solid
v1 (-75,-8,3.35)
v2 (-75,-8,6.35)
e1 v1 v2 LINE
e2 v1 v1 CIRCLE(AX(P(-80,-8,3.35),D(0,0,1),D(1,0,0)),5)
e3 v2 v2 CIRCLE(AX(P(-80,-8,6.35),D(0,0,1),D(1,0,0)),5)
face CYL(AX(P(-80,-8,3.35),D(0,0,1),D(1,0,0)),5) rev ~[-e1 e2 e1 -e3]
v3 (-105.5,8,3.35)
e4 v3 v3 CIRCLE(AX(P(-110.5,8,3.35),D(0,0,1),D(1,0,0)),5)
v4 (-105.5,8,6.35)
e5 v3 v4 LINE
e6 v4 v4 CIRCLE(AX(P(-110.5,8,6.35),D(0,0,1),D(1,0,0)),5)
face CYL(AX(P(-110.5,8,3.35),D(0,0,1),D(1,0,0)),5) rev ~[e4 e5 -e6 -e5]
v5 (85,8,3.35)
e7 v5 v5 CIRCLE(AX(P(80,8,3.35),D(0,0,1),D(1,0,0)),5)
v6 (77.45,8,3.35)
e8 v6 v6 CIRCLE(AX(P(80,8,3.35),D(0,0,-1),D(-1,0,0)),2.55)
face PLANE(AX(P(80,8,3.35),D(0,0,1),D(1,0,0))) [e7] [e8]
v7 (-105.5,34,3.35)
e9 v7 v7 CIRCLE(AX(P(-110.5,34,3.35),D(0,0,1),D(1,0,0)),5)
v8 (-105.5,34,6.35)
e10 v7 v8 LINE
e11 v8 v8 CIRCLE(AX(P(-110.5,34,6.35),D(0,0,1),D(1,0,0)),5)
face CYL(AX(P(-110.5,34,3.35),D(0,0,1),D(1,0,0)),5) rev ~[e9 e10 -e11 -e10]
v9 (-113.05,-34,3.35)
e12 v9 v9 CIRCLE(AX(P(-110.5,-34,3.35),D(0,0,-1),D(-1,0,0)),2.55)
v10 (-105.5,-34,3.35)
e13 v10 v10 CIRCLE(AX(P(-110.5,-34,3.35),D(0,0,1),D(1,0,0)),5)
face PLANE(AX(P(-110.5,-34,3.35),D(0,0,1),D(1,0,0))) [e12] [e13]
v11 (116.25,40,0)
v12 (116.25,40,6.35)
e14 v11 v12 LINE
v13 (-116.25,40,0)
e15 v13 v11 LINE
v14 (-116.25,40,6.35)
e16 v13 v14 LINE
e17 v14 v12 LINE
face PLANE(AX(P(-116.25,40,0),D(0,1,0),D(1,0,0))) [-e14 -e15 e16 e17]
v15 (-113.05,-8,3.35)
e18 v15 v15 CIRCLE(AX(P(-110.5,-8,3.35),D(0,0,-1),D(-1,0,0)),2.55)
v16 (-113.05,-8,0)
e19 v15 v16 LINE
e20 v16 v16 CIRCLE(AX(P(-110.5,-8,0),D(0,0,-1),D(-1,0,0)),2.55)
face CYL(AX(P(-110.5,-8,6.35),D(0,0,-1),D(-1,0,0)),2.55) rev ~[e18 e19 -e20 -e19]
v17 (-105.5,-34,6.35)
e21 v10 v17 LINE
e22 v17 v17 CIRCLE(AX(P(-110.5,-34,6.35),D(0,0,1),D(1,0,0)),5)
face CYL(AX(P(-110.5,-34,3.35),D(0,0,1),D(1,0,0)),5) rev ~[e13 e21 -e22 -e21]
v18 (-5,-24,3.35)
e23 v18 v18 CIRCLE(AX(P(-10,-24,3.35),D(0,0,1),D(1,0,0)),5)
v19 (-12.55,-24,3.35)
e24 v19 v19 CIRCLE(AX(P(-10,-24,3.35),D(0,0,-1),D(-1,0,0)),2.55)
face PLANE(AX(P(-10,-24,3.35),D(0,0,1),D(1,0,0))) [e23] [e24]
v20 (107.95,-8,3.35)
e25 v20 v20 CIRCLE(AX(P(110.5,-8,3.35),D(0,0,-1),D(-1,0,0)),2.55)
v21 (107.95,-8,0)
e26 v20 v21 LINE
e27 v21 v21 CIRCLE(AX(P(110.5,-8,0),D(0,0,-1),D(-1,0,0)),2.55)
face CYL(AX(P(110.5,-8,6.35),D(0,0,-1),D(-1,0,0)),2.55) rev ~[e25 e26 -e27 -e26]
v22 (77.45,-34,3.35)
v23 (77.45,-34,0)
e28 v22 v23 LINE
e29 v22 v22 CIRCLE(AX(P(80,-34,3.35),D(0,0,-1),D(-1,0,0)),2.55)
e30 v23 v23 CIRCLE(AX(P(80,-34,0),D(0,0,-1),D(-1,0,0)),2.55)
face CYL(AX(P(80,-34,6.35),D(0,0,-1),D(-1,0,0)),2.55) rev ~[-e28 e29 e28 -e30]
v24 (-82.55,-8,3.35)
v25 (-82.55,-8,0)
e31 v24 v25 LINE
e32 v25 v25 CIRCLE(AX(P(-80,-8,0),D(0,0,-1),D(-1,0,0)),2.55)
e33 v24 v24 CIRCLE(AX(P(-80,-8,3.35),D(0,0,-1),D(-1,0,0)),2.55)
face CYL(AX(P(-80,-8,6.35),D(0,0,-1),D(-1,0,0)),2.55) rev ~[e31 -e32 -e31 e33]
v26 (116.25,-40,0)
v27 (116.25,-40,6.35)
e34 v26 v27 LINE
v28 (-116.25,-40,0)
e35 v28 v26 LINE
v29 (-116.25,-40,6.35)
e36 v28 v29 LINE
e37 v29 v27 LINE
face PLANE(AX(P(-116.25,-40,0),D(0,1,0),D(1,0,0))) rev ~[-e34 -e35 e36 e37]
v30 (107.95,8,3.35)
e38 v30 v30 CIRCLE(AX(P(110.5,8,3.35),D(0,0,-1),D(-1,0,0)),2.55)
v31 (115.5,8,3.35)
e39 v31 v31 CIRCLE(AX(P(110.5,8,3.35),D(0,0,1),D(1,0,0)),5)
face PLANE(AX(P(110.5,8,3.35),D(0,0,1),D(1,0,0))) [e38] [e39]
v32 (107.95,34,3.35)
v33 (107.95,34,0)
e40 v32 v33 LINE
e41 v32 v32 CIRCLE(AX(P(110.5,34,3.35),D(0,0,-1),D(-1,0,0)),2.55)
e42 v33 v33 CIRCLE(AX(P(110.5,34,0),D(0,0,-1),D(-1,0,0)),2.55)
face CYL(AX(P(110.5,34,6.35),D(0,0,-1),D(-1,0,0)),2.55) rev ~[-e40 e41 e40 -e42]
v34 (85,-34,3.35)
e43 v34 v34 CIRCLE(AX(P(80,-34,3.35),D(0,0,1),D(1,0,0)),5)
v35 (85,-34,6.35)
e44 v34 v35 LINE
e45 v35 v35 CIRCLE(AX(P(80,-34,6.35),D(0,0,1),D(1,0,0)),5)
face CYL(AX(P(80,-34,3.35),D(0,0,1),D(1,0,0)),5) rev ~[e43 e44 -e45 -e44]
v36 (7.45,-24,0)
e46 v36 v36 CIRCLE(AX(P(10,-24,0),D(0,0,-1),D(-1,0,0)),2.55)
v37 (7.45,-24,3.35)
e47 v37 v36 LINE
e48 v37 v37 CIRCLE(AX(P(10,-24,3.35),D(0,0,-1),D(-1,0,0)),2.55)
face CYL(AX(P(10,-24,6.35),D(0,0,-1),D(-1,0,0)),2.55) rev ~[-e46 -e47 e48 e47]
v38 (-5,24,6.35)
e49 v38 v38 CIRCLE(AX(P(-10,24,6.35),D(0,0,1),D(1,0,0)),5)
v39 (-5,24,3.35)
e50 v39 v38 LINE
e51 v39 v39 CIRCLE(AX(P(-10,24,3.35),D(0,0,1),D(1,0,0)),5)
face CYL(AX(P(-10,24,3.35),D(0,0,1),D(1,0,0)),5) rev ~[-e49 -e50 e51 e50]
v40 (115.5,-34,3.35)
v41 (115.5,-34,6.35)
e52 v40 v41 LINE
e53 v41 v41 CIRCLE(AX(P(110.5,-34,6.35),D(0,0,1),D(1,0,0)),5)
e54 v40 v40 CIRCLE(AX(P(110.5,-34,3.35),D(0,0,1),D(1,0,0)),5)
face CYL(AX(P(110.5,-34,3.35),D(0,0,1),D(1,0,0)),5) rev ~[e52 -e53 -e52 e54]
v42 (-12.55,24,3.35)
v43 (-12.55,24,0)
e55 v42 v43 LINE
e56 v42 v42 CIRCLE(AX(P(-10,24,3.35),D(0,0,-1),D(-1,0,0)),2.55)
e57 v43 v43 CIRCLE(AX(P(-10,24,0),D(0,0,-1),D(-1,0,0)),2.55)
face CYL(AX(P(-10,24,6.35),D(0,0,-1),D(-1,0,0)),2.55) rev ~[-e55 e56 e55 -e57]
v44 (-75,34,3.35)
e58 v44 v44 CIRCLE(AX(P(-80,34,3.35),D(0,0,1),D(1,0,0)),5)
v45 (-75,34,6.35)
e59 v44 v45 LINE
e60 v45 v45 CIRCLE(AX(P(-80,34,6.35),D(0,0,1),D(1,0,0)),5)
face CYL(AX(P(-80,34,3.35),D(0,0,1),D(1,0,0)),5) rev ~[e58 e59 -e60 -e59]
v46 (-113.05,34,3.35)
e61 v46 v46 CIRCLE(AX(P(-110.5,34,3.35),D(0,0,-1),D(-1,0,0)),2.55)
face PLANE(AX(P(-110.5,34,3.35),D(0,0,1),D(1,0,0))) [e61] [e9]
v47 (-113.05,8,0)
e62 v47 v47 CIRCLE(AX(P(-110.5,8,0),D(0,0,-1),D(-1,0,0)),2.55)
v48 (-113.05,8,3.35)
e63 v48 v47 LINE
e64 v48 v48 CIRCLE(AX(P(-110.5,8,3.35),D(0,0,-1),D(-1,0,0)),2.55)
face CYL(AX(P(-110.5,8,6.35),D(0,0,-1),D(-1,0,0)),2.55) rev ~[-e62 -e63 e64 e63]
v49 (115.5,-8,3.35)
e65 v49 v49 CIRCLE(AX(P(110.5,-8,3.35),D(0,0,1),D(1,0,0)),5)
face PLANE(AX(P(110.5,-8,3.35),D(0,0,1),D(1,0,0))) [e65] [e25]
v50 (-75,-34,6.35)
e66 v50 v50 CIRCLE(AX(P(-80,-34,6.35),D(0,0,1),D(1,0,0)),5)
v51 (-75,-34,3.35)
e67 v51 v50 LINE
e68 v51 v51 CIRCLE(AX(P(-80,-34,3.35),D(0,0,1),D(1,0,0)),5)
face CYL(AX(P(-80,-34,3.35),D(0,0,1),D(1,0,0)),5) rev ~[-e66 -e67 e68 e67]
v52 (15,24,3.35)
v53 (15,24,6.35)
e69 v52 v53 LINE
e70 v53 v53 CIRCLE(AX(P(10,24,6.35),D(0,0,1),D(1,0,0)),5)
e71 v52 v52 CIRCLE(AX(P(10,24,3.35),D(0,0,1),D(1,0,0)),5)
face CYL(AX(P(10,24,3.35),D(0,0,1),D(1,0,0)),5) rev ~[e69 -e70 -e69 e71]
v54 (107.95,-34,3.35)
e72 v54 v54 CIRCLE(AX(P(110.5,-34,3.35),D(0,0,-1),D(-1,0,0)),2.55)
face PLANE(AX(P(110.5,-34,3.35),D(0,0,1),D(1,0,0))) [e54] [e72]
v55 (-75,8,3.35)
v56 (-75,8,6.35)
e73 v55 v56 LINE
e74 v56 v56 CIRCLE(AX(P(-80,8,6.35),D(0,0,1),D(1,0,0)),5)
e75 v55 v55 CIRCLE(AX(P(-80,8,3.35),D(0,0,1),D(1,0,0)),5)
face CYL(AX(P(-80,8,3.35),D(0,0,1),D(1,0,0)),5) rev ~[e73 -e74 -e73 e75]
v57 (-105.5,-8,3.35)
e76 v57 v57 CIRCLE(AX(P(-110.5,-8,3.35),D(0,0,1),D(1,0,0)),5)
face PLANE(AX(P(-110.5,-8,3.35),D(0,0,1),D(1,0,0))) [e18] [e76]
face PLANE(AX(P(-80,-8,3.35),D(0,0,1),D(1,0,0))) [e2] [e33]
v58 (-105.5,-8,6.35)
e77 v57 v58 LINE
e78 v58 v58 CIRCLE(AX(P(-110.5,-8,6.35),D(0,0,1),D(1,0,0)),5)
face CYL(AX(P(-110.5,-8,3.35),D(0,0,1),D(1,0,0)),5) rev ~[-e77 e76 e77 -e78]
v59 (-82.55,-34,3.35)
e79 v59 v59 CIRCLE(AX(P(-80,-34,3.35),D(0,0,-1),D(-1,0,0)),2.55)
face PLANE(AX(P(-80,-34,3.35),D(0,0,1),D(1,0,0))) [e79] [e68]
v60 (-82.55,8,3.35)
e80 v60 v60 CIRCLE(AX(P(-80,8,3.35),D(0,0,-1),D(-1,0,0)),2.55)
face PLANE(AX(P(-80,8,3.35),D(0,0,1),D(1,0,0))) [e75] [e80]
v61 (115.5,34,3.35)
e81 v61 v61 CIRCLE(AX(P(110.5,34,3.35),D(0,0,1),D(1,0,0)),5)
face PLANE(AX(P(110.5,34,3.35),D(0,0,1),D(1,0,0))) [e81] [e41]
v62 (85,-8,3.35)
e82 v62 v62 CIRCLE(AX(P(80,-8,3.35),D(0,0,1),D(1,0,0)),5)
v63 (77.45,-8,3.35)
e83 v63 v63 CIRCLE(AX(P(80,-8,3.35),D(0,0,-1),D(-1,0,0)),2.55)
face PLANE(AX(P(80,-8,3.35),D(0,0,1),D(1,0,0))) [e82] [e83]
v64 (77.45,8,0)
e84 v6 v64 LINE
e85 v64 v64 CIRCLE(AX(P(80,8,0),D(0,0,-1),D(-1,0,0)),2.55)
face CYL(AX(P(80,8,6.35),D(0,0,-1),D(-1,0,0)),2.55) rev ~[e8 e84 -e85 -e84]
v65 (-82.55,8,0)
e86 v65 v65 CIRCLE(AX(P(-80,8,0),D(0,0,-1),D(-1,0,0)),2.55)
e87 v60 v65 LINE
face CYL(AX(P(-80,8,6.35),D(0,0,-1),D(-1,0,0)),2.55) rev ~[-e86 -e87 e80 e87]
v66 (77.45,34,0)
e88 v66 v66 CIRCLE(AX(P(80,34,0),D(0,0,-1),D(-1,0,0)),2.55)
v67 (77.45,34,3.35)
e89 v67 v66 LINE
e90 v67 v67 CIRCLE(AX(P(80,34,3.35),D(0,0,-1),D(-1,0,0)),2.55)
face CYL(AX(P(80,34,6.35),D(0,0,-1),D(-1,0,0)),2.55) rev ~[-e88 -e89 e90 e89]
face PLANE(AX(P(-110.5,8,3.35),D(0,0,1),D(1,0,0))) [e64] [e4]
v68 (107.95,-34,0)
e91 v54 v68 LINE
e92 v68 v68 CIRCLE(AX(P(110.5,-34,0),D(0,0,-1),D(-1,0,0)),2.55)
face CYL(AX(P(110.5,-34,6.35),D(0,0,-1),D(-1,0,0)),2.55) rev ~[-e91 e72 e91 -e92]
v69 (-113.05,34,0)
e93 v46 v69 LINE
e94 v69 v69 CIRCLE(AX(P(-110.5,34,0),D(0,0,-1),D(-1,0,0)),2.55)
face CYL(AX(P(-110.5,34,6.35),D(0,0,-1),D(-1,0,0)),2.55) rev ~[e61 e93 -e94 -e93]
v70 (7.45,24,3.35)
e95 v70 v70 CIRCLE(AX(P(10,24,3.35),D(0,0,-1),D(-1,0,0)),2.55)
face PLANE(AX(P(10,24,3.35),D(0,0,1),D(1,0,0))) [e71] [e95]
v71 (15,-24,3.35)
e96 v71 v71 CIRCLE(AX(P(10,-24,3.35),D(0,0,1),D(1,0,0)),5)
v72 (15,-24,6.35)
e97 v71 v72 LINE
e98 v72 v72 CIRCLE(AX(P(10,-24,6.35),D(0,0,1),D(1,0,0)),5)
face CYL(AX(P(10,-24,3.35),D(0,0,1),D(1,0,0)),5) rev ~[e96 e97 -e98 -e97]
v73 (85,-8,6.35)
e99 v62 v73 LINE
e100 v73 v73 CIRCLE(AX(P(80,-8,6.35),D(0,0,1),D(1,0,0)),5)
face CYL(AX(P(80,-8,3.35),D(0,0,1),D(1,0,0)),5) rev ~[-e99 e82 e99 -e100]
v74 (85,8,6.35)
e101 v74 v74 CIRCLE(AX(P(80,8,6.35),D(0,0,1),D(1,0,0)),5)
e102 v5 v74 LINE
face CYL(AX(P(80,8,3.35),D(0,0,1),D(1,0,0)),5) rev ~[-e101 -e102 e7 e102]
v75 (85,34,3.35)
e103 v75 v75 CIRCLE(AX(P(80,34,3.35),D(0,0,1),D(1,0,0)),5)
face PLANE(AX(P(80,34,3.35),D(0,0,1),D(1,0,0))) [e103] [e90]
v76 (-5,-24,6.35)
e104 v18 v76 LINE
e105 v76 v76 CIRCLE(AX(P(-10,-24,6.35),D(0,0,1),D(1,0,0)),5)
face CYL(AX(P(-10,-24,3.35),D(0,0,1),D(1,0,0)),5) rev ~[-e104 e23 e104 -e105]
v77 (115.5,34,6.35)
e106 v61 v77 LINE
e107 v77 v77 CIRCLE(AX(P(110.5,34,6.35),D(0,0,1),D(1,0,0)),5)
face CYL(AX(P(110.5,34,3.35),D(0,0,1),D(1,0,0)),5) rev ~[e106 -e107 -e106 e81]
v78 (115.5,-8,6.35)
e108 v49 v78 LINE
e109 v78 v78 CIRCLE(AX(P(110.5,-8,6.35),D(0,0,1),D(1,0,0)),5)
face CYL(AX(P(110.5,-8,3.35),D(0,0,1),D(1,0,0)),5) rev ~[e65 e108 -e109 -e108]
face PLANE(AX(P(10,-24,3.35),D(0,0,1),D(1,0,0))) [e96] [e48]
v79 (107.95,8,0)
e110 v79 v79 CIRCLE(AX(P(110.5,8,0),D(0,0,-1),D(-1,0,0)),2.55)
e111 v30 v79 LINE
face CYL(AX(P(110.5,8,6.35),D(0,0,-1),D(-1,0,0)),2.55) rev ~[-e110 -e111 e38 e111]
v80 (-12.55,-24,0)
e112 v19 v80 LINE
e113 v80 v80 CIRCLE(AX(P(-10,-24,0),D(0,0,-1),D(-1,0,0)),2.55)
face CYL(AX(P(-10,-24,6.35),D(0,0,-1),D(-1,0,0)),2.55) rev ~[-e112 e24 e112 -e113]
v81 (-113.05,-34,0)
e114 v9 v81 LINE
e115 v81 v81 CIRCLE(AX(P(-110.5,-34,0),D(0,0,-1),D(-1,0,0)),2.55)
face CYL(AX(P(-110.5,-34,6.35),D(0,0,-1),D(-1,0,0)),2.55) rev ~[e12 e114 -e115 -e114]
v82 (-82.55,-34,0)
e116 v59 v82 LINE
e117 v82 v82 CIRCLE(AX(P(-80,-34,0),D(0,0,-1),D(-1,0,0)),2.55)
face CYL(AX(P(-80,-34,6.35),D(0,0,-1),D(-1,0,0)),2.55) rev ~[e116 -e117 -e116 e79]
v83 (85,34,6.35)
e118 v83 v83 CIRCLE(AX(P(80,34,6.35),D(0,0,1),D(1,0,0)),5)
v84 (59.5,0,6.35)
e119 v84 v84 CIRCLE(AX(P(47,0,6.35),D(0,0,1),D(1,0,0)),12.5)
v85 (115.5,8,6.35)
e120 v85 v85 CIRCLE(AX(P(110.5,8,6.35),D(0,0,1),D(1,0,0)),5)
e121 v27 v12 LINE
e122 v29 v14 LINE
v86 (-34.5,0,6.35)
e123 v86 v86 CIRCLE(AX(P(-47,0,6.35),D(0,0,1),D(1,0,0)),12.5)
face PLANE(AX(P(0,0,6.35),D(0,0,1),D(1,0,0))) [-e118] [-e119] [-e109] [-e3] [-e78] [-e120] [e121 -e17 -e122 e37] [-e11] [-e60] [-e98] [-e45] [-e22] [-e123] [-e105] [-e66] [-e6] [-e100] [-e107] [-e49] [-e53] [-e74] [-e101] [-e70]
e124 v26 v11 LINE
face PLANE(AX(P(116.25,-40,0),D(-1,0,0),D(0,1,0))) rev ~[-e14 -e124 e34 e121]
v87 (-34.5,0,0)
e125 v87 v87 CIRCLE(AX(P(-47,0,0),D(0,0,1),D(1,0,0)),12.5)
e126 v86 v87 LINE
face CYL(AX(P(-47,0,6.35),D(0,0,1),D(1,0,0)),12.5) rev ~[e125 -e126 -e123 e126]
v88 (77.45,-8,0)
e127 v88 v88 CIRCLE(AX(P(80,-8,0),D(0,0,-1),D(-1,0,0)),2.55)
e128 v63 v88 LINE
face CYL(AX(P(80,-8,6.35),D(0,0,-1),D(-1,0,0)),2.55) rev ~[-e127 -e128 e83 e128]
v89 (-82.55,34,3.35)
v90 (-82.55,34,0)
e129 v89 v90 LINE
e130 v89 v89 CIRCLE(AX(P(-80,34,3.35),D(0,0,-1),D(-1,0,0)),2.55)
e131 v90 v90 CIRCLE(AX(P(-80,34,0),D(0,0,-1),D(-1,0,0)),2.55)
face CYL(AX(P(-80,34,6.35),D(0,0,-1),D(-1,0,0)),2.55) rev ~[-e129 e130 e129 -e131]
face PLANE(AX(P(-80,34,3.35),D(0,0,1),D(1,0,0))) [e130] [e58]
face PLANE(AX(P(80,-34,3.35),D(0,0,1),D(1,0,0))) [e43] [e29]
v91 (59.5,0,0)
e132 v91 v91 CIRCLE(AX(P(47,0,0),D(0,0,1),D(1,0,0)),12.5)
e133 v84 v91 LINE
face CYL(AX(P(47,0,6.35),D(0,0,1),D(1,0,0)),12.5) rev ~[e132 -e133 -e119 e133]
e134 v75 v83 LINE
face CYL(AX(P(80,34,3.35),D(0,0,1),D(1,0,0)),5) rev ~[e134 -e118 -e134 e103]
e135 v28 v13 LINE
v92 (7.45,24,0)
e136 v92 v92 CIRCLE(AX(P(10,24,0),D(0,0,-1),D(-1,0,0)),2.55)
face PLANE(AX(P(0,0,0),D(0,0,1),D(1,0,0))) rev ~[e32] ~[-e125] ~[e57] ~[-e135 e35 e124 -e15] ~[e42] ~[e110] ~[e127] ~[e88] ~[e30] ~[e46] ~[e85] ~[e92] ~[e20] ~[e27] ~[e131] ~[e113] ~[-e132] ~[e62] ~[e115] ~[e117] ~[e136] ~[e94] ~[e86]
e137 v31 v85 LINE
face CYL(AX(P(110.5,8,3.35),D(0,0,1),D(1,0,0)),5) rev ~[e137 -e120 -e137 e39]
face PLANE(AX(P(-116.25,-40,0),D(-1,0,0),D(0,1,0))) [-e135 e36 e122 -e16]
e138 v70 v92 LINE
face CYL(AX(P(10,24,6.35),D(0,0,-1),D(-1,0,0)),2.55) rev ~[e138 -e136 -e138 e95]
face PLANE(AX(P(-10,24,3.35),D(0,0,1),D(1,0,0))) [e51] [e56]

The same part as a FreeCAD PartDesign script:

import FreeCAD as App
import Part
import Sketcher


def add_polygon(sketch, points):
    """Adds a closed chain of lines whose ends are joined by coincident constraints."""
    first, n = sketch.GeometryCount, len(points)
    for a, b in zip(points, points[1:] + points[:1]):
        sketch.addGeometry(Part.LineSegment(App.Vector(*a, 0), App.Vector(*b, 0)), False)
    for i in range(n):
        sketch.addConstraint(Sketcher.Constraint("Coincident", first + i, 2, first + (i + 1) % n, 1))

doc = App.newDocument("Part")
body = doc.addObject("PartDesign::Body", "Body")

sketch1 = body.newObject("Sketcher::SketchObject", "Sketch")
sketch1.AttachmentSupport = (doc.getObject("XY_Plane"), [""])
sketch1.MapMode = "FlatFace"
add_polygon(sketch1, [(-116, 40), (-116, -40), (116, -40), (116, 40)])
sketch1.addConstraint([
    Sketcher.Constraint("Vertical", 0),
    Sketcher.Constraint("Horizontal", 1),
    Sketcher.Constraint("Vertical", 2),
    Sketcher.Constraint("Horizontal", 3),
    Sketcher.Constraint("Symmetric", 0, 2, 2, 2, -1, 1),
    Sketcher.Constraint("DistanceY", 0, 2, 0, 1, 80.0),
    Sketcher.Constraint("DistanceX", 1, 1, 1, 2, 232.5),
])
pad1 = body.newObject("PartDesign::Pad", "Pad")
pad1.Profile = sketch1
pad1.Length = 6.35

sketch2 = body.newObject("Sketcher::SketchObject", "Sketch001")
sketch2.AttachmentSupport = (doc.getObject("XY_Plane"), [""])
sketch2.MapMode = "FlatFace"
sketch2.AttachmentOffset = App.Placement(App.Vector(0, 0, 6.35), App.Rotation())
sketch2.addGeometry([
    Part.Circle(App.Vector(-110.5, 34, 0), App.Vector(0, 0, 1), 2.5),
    Part.Circle(App.Vector(-110.5, 8, 0), App.Vector(0, 0, 1), 2.5),
    Part.Circle(App.Vector(-80, 34, 0), App.Vector(0, 0, 1), 2.5),
    Part.Circle(App.Vector(-80, 8, 0), App.Vector(0, 0, 1), 2.5),
    Part.Circle(App.Vector(80, 34, 0), App.Vector(0, 0, 1), 2.5),
    Part.Circle(App.Vector(80, 8, 0), App.Vector(0, 0, 1), 2.5),
    Part.Circle(App.Vector(110.5, 34, 0), App.Vector(0, 0, 1), 2.5),
    Part.Circle(App.Vector(110.5, 8, 0), App.Vector(0, 0, 1), 2.5),
    Part.Circle(App.Vector(-110.5, -8, 0), App.Vector(0, 0, 1), 2.5),
    Part.Circle(App.Vector(-110.5, -34, 0), App.Vector(0, 0, 1), 2.5),
    Part.Circle(App.Vector(-80, -8, 0), App.Vector(0, 0, 1), 2.5),
    Part.Circle(App.Vector(-80, -34, 0), App.Vector(0, 0, 1), 2.5),
    Part.Circle(App.Vector(80, -8, 0), App.Vector(0, 0, 1), 2.5),
    Part.Circle(App.Vector(80, -34, 0), App.Vector(0, 0, 1), 2.5),
    Part.Circle(App.Vector(110.5, -8, 0), App.Vector(0, 0, 1), 2.5),
    Part.Circle(App.Vector(110.5, -34, 0), App.Vector(0, 0, 1), 2.5),
    Part.Circle(App.Vector(-10, 24, 0), App.Vector(0, 0, 1), 2.5),
    Part.Circle(App.Vector(10, 24, 0), App.Vector(0, 0, 1), 2.5),
    Part.Circle(App.Vector(10, -24, 0), App.Vector(0, 0, 1), 2.5),
    Part.Circle(App.Vector(-10, -24, 0), App.Vector(0, 0, 1), 2.5),
], False)
sketch2.addConstraint([
    Sketcher.Constraint("Equal", 0, 1),
    Sketcher.Constraint("Equal", 1, 2),
    Sketcher.Constraint("Equal", 2, 3),
    Sketcher.Constraint("Equal", 3, 4),
    Sketcher.Constraint("Equal", 4, 5),
    Sketcher.Constraint("Equal", 5, 6),
    Sketcher.Constraint("Equal", 6, 7),
    Sketcher.Constraint("Equal", 7, 8),
    Sketcher.Constraint("Equal", 8, 9),
    Sketcher.Constraint("Equal", 9, 10),
    Sketcher.Constraint("Equal", 10, 11),
    Sketcher.Constraint("Equal", 11, 12),
    Sketcher.Constraint("Equal", 12, 13),
    Sketcher.Constraint("Equal", 13, 14),
    Sketcher.Constraint("Equal", 14, 15),
    Sketcher.Constraint("Equal", 15, 16),
    Sketcher.Constraint("Equal", 16, 17),
    Sketcher.Constraint("Equal", 17, 18),
    Sketcher.Constraint("Equal", 18, 19),
    Sketcher.Constraint("Symmetric", 7, 3, 8, 3, -1, 1),
    Sketcher.Constraint("Symmetric", 6, 3, 9, 3, -1, 1),
    Sketcher.Constraint("Symmetric", 5, 3, 10, 3, -1, 1),
    Sketcher.Constraint("Symmetric", 4, 3, 11, 3, -1, 1),
    Sketcher.Constraint("Symmetric", 3, 3, 12, 3, -1, 1),
    Sketcher.Constraint("Symmetric", 2, 3, 13, 3, -1, 1),
    Sketcher.Constraint("Symmetric", 1, 3, 14, 3, -1, 1),
    Sketcher.Constraint("Symmetric", 0, 3, 15, 3, -1, 1),
    Sketcher.Constraint("Symmetric", 16, 3, 18, 3, -1, 1),
    Sketcher.Constraint("Symmetric", 17, 3, 19, 3, -1, 1),
    Sketcher.Constraint("Symmetric", 2, 3, 4, 3, -2),
    Sketcher.Constraint("Symmetric", 3, 3, 5, 3, -2),
    Sketcher.Constraint("Symmetric", 0, 3, 6, 3, -2),
    Sketcher.Constraint("Symmetric", 1, 3, 7, 3, -2),
    Sketcher.Constraint("Symmetric", 16, 3, 17, 3, -2),
    Sketcher.Constraint("Horizontal", 0, 3, 2, 3),
    Sketcher.Constraint("Horizontal", 1, 3, 3, 3),
    Sketcher.Constraint("Vertical", 0, 3, 1, 3),
    Sketcher.Constraint("Vertical", 2, 3, 3, 3),
    Sketcher.Constraint("Diameter", 0, 5.1),
    Sketcher.Constraint("DistanceY", -1, 1, 0, 3, 34.0),
    Sketcher.Constraint("DistanceY", -1, 1, 1, 3, 8.0),
    Sketcher.Constraint("DistanceX", 2, 3, -1, 1, 80.0),
    Sketcher.Constraint("DistanceX", 16, 3, -1, 1, 10.0),
    Sketcher.Constraint("DistanceY", -1, 1, 16, 3, 24.0),
    Sketcher.Constraint("DistanceX", 0, 3, 6, 3, 221.0),
])
doc.recompute()
hole = body.newObject("PartDesign::Hole", "Hole")
hole.Profile = sketch2
hole.ThreadType = "None"
hole.Diameter = 5.1
hole.DepthType = "ThroughAll"
hole.HoleCutType = "Counterbore"
hole.HoleCutDiameter = 10
hole.HoleCutDepth = 3

sketch3 = body.newObject("Sketcher::SketchObject", "Sketch002")
sketch3.AttachmentSupport = (doc.getObject("XY_Plane"), [""])
sketch3.MapMode = "FlatFace"
sketch3.AttachmentOffset = App.Placement(App.Vector(0, 0, 6.35), App.Rotation())
sketch3.addGeometry([
    Part.Circle(App.Vector(-47, 0, 0), App.Vector(0, 0, 1), 12),
    Part.Circle(App.Vector(47, 0, 0), App.Vector(0, 0, 1), 12),
], False)
sketch3.addConstraint([
    Sketcher.Constraint("Equal", 0, 1),
    Sketcher.Constraint("Symmetric", 0, 3, 1, 3, -1, 1),
    Sketcher.Constraint("PointOnObject", 0, 3, -1),
    Sketcher.Constraint("Diameter", 0, 25.0),
    Sketcher.Constraint("DistanceX", 0, 3, -1, 1, 47.0),
])
pocket1 = body.newObject("PartDesign::Pocket", "Pocket")
pocket1.Profile = sketch3
pocket1.Type = "ThroughAll"

doc.recompute()
